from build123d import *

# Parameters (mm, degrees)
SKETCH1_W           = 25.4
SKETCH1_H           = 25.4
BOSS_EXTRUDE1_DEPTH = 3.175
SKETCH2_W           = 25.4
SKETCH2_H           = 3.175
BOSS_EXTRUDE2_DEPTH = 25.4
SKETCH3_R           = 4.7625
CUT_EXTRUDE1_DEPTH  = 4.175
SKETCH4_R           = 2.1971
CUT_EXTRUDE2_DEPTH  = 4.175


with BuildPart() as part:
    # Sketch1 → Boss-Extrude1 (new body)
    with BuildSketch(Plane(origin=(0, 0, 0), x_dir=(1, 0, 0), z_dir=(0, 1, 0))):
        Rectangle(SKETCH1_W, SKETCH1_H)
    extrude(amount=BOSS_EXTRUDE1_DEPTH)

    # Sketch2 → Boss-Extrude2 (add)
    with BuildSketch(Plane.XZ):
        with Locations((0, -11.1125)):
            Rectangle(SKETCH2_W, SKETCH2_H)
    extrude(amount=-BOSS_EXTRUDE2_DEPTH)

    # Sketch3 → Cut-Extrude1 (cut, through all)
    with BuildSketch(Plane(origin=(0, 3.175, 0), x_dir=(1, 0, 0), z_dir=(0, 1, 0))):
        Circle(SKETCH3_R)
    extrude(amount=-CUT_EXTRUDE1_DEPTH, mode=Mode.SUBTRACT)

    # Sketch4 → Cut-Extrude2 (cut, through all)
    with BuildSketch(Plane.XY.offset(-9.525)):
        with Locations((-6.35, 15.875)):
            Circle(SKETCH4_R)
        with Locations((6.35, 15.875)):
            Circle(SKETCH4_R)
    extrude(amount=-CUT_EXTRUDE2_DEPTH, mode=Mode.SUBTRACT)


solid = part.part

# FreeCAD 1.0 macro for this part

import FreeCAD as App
import Part
import Sketcher
from FreeCAD import Vector
Q = App.Units.Quantity

doc = App.newDocument("Part")
body = doc.addObject("PartDesign::Body", "Body")

# Sketch on XZ plane
sketch1 = body.newObject("Sketcher::SketchObject", "Sketch")
sketch1.AttachmentSupport = (doc.getObject("XZ_Plane"), [""])
sketch1.MapMode = "FlatFace"
sketch1.addGeometry([
    Part.LineSegment(Vector(-13, -13, 0), Vector(-13, 13, 0)),
    Part.LineSegment(Vector(-13, 13, 0), Vector(13, 13, 0)),
    Part.LineSegment(Vector(13, 13, 0), Vector(13, -13, 0)),
    Part.LineSegment(Vector(13, -13, 0), Vector(-13, -13, 0)),
], False)
sketch1.addConstraint([
    Sketcher.Constraint("Coincident", 0, 2, 1, 1),
    Sketcher.Constraint("Coincident", 1, 2, 2, 1),
    Sketcher.Constraint("Coincident", 2, 2, 3, 1),
    Sketcher.Constraint("Coincident", 3, 2, 0, 1),
    Sketcher.Constraint("Vertical", 0),
    Sketcher.Constraint("Horizontal", 1),
    Sketcher.Constraint("Vertical", 2),
    Sketcher.Constraint("Horizontal", 3),
    Sketcher.Constraint("Symmetric", 0, 2, 2, 2, -1, 1),
    Sketcher.Constraint("Equal", 3, 0),
    Sketcher.Constraint("DistanceX", 1, 1, 1, 2, Q("1 in")),
])
pad1 = body.newObject("PartDesign::Pad", "Pad")
pad1.Profile = sketch1
pad1.Length = Q("0.125 in")
pad1.Reversed = True

# Sketch on XZ plane
sketch2 = body.newObject("Sketcher::SketchObject", "Sketch001")
sketch2.AttachmentSupport = (doc.getObject("XZ_Plane"), [""])
sketch2.MapMode = "FlatFace"
sketch2.addGeometry([
    Part.LineSegment(Vector(-12.7, -9.5, 0), Vector(-12.7, -12.7, 0)),
    Part.LineSegment(Vector(-12.7, -12.7, 0), Vector(12.7, -12.7, 0)),
    Part.LineSegment(Vector(12.7, -12.7, 0), Vector(12.7, -9.5, 0)),
    Part.LineSegment(Vector(12.7, -9.5, 0), Vector(-12.7, -9.5, 0)),
], False)
sketch2.addConstraint([
    Sketcher.Constraint("Coincident", 0, 2, 1, 1),
    Sketcher.Constraint("Coincident", 1, 2, 2, 1),
    Sketcher.Constraint("Coincident", 2, 2, 3, 1),
    Sketcher.Constraint("Coincident", 3, 2, 0, 1),
    Sketcher.Constraint("Vertical", 0),
    Sketcher.Constraint("Horizontal", 1),
    Sketcher.Constraint("Vertical", 2),
    Sketcher.Constraint("Horizontal", 3),
    Sketcher.Constraint("DistanceX", 1, 1, 1, 2, Q("1 in")),
    Sketcher.Constraint("DistanceX", 0, 2, -1, 1, Q("0.5 in")),
    Sketcher.Constraint("DistanceY", 0, 2, -1, 1, Q("0.5 in")),
    Sketcher.Constraint("DistanceY", 0, 2, 0, 1, Q("0.125 in")),
])
pad2 = body.newObject("PartDesign::Pad", "Pad001")
pad2.Profile = sketch2
pad2.Length = Q("1 in")
pad2.Reversed = True

# Sketch on XZ plane
sketch3 = body.newObject("Sketcher::SketchObject", "Sketch002")
sketch3.AttachmentSupport = (doc.getObject("XZ_Plane"), [""])
sketch3.MapMode = "FlatFace"
sketch3.AttachmentOffset = App.Placement(Vector(0, 0, -0.125 * 25.4), App.Rotation())
sketch3.addGeometry(Part.Circle(Vector(0, 0, 0), Vector(0, 0, 1), 4.8), False)
sketch3.addConstraint([
    Sketcher.Constraint("Coincident", 0, 3, -1, 1),
    Sketcher.Constraint("Diameter", 0, Q("0.375 in")),
])
pocket1 = body.newObject("PartDesign::Pocket", "Pocket")
pocket1.Profile = sketch3
pocket1.Type = "ThroughAll"
pocket1.Reversed = True

# Sketch on XY plane
sketch4 = body.newObject("Sketcher::SketchObject", "Sketch003")
sketch4.AttachmentSupport = (doc.getObject("XY_Plane"), [""])
sketch4.MapMode = "FlatFace"
sketch4.AttachmentOffset = App.Placement(Vector(0, 0, -0.375 * 25.4), App.Rotation())
sketch4.addGeometry([
    Part.Circle(Vector(-6.3, 15.9, 0), Vector(0, 0, 1), 2.2),
    Part.Circle(Vector(6.3, 15.9, 0), Vector(0, 0, 1), 2.2),
], False)
sketch4.addConstraint([
    Sketcher.Constraint("Equal", 0, 1),
    Sketcher.Constraint("Symmetric", 0, 3, 1, 3, -2),
    Sketcher.Constraint("Diameter", 0, Q("0.173 in")),
    Sketcher.Constraint("DistanceX", 0, 3, 1, 3, Q("0.5 in")),
    Sketcher.Constraint("DistanceY", -1, 1, 0, 3, Q("0.625 in")),
])
pocket2 = body.newObject("PartDesign::Pocket", "Pocket001")
pocket2.Profile = sketch4
pocket2.Type = "ThroughAll"

doc.recompute()
